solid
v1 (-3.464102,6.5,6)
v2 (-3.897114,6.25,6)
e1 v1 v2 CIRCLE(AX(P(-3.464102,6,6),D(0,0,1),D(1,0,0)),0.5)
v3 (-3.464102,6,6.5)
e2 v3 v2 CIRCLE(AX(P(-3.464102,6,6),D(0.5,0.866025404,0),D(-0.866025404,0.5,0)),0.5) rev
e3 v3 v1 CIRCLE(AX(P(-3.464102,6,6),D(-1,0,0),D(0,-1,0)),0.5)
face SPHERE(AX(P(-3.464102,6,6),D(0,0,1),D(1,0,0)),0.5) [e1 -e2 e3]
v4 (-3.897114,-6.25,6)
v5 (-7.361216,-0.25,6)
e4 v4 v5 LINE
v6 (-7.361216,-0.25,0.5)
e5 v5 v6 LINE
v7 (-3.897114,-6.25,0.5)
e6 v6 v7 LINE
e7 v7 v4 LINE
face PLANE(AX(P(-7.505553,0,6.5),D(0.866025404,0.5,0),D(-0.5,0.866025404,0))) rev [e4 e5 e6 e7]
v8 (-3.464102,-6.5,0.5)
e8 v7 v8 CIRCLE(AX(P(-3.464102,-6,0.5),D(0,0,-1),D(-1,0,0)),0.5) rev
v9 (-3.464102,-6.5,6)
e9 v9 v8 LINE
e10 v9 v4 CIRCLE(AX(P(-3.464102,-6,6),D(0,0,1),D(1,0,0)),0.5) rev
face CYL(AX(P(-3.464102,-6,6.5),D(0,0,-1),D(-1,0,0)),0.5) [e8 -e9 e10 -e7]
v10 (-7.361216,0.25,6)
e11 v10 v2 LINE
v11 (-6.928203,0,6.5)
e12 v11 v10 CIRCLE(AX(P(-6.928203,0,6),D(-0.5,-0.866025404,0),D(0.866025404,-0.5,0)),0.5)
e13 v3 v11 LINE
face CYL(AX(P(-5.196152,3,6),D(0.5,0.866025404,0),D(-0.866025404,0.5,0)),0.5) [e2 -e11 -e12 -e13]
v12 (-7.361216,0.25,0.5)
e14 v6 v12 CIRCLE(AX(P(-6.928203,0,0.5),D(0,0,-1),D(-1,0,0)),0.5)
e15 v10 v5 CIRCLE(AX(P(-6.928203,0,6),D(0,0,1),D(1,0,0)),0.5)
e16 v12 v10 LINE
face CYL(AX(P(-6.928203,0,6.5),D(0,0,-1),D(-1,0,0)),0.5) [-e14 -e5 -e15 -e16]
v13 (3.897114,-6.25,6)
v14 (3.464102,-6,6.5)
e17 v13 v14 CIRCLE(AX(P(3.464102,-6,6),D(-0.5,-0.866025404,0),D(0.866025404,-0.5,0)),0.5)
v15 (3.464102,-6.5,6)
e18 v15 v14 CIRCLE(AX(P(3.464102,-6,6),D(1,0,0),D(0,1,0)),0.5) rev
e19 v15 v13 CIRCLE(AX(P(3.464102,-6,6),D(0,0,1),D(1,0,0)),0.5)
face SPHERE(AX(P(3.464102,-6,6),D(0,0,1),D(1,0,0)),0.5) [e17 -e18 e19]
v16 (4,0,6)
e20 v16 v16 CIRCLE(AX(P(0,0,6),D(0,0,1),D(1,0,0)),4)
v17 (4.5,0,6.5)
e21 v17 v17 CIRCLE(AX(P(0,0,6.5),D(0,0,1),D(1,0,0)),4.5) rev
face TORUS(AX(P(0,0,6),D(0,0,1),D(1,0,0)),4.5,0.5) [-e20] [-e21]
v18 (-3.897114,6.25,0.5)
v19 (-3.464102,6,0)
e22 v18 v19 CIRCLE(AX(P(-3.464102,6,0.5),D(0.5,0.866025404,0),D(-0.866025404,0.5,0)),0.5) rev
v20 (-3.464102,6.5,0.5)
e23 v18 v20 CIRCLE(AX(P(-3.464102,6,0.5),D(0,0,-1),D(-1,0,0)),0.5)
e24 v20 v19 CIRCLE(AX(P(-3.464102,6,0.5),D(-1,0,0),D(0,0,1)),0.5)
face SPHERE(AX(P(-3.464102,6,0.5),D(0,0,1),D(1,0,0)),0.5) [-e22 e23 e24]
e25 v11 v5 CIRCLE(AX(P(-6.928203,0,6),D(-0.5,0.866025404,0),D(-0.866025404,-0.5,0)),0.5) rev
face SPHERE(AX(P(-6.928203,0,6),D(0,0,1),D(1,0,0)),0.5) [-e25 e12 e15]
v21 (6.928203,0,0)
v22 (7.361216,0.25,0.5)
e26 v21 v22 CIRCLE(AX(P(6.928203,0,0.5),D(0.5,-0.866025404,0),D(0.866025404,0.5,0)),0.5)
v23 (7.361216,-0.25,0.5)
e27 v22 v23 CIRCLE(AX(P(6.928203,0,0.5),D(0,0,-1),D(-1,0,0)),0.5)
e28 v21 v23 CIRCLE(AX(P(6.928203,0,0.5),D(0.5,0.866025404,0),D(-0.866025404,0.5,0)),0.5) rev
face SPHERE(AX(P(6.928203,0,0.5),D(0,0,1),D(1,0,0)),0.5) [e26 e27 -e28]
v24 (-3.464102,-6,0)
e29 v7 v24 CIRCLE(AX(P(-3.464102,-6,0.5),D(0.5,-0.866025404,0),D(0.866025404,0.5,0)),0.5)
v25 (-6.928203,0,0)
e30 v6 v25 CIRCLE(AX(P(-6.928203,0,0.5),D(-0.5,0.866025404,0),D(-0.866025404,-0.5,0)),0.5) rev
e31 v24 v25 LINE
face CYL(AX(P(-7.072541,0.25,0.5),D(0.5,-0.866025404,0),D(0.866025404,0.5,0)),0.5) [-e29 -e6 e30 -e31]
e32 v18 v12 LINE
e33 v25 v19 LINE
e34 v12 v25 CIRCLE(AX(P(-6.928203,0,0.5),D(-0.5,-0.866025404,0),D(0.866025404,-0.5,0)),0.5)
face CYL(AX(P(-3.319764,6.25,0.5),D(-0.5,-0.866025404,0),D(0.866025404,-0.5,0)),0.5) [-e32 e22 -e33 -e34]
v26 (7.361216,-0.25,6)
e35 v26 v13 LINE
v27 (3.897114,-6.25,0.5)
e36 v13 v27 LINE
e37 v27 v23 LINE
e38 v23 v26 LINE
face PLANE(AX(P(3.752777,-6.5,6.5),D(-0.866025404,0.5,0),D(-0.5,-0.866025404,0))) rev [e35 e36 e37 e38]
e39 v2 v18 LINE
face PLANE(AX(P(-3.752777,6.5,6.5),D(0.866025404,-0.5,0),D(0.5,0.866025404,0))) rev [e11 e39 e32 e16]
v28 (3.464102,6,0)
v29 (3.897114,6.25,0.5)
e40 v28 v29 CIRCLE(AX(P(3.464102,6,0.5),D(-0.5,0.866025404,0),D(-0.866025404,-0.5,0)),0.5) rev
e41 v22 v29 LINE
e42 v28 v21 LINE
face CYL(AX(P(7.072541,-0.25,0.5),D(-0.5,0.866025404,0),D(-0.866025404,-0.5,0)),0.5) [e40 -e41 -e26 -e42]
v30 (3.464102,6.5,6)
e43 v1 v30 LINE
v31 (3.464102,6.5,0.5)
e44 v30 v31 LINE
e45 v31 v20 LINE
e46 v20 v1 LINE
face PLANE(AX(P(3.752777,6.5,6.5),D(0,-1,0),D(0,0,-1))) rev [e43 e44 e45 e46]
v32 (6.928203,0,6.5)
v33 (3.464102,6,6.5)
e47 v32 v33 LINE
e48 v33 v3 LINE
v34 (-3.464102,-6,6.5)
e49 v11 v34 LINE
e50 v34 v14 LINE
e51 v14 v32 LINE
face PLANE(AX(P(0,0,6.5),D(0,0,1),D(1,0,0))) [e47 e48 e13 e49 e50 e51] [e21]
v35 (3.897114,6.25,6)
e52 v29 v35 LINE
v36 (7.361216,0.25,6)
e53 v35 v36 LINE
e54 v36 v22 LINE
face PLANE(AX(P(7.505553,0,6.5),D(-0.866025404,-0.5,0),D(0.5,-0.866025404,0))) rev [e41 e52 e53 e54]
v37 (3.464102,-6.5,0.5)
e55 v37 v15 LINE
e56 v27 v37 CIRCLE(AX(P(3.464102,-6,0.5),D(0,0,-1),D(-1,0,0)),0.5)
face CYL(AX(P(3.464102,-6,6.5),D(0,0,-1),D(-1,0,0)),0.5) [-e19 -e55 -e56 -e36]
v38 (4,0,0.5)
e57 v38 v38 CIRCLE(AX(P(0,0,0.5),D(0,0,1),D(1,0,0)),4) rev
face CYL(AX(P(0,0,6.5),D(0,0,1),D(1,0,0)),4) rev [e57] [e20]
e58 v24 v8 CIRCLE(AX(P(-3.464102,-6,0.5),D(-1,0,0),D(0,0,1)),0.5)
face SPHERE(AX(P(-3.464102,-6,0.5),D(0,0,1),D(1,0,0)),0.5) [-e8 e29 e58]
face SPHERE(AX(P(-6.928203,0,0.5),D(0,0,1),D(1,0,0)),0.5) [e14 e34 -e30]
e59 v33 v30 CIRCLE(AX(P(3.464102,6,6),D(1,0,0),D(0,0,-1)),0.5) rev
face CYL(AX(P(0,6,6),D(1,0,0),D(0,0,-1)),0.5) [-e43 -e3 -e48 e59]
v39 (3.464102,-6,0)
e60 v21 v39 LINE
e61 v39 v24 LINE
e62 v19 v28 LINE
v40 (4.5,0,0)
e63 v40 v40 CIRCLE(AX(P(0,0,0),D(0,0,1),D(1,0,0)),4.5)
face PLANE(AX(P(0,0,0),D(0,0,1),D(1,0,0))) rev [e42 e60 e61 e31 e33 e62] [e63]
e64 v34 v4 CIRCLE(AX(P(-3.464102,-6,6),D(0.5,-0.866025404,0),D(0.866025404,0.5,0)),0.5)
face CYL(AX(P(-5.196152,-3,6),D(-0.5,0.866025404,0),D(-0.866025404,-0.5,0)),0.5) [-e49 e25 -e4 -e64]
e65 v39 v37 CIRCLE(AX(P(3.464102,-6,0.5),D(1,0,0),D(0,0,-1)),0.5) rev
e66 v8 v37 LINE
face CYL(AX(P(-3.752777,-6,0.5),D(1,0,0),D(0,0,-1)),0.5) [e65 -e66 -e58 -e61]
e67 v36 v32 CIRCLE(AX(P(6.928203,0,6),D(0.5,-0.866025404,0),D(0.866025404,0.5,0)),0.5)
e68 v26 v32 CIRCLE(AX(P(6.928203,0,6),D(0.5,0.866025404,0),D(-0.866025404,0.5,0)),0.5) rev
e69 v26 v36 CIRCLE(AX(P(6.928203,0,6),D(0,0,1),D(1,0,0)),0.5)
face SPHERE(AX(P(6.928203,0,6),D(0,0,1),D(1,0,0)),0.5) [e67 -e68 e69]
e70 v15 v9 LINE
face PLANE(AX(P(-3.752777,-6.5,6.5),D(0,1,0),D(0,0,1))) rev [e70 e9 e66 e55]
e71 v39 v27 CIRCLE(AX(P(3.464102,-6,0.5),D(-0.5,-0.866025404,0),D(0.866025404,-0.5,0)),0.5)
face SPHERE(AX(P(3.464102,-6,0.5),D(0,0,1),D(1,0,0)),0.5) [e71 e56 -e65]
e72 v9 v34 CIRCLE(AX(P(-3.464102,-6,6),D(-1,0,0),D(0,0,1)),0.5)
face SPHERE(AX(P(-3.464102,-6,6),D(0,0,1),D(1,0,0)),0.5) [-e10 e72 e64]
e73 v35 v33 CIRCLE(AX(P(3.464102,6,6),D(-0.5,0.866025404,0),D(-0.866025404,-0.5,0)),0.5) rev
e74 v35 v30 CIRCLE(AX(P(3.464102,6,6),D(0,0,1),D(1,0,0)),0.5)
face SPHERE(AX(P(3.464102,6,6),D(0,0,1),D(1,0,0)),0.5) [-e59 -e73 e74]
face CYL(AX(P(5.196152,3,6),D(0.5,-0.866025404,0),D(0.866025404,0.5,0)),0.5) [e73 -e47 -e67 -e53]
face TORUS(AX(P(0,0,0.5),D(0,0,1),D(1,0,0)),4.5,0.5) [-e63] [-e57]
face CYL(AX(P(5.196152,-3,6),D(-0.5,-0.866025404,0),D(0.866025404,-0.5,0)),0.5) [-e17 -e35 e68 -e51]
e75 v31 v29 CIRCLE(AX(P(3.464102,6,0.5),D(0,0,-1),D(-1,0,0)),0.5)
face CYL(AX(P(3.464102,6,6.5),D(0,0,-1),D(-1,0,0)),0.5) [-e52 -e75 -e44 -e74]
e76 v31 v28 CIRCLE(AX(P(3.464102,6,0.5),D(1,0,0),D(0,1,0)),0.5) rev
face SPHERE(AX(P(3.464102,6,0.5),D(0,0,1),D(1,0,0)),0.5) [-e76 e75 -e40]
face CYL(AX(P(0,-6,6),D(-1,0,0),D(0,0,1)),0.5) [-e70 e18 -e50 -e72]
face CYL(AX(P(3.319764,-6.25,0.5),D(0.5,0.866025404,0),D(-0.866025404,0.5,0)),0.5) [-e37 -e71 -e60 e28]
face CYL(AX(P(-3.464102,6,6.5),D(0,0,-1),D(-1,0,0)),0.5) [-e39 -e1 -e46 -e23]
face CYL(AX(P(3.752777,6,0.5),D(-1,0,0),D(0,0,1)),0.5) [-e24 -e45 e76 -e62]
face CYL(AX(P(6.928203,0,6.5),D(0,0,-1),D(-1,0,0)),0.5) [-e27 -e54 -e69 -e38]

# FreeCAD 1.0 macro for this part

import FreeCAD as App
import Part
import Sketcher
from FreeCAD import Vector
Q = App.Units.Quantity


def add_polygon(sketch, points):
    """Adds a closed chain of lines whose ends are joined by coincident constraints."""
    first, n = sketch.GeometryCount, len(points)
    for a, b in zip(points, points[1:] + points[:1]):
        sketch.addGeometry(Part.LineSegment(App.Vector(*a, 0), App.Vector(*b, 0)), False)
    for i in range(n):
        sketch.addConstraint(Sketcher.Constraint("Coincident", first + i, 2, first + (i + 1) % n, 1))

doc = App.newDocument("Part")
body = doc.addObject("PartDesign::Body", "Body")

# Sketch on XY plane
sketch1 = body.newObject("Sketcher::SketchObject", "Sketch")
sketch1.AttachmentSupport = (doc.getObject("XY_Plane"), [""])
sketch1.MapMode = "FlatFace"
add_polygon(sketch1, [(-8, 0), (-4, -6), (4, -6), (8, 0), (4, 6), (-4, 6)])  # lines 0-5
sketch1.addConstraint(Sketcher.Constraint("Horizontal", 1))
sketch1.addConstraint(Sketcher.Constraint("Horizontal", 4))
sketch1.addConstraint(Sketcher.Constraint("Symmetric", 0, 2, 3, 2, -1, 1))
sketch1.addConstraint(Sketcher.Constraint("Symmetric", 2, 2, 5, 2, -1, 1))
sketch1.addConstraint(Sketcher.Constraint("PointOnObject", 2, 2, -1))
sketch1.addConstraint(Sketcher.Constraint("Parallel", 2, 5))
sketch1.addConstraint(Sketcher.Constraint("Vertical", 1, 2, 3, 2))
sketch1.addConstraint(Sketcher.Constraint("Angle", 0, Q("-60 deg")))
sketch1.addConstraint(Sketcher.Constraint("DistanceY", 1, 2, 3, 2, Q("13 mm")))
sketch1.addConstraint(Sketcher.Constraint("DistanceX", 1, 1, 1, 2, Q("7.505554 mm")))
pad1 = body.newObject("PartDesign::Pad", "Pad")
pad1.Profile = sketch1
pad1.Length = 6.5

# Sketch on XY plane
sketch2 = body.newObject("Sketcher::SketchObject", "Sketch001")
sketch2.AttachmentSupport = (doc.getObject("XY_Plane"), [""])
sketch2.MapMode = "FlatFace"
sketch2.AttachmentOffset = App.Placement(Vector(0, 0, 6.5), App.Rotation())
sketch2.addGeometry(Part.Circle(Vector(0, 0, 0), Vector(0, 0, 1), 4), False)
sketch2.addConstraint(Sketcher.Constraint("Coincident", 0, 3, -1, 1))
sketch2.addConstraint(Sketcher.Constraint("Diameter", 0, Q("8 mm")))
doc.recompute()
hole = body.newObject("PartDesign::Hole", "Hole")
hole.Profile = sketch2
hole.ThreadType = "None"
hole.Diameter = 8
hole.DepthType = "Dimension"
hole.Depth = 14
hole.DrillPoint = "Angled"
hole.DrillPointAngle = 118
doc.recompute()

fillet = body.newObject("PartDesign::Fillet", "Fillet")
fillet.Base = (hole, ["Edge1"])
fillet.UseAllEdges = True
fillet.Radius = 0.5

doc.recompute()
